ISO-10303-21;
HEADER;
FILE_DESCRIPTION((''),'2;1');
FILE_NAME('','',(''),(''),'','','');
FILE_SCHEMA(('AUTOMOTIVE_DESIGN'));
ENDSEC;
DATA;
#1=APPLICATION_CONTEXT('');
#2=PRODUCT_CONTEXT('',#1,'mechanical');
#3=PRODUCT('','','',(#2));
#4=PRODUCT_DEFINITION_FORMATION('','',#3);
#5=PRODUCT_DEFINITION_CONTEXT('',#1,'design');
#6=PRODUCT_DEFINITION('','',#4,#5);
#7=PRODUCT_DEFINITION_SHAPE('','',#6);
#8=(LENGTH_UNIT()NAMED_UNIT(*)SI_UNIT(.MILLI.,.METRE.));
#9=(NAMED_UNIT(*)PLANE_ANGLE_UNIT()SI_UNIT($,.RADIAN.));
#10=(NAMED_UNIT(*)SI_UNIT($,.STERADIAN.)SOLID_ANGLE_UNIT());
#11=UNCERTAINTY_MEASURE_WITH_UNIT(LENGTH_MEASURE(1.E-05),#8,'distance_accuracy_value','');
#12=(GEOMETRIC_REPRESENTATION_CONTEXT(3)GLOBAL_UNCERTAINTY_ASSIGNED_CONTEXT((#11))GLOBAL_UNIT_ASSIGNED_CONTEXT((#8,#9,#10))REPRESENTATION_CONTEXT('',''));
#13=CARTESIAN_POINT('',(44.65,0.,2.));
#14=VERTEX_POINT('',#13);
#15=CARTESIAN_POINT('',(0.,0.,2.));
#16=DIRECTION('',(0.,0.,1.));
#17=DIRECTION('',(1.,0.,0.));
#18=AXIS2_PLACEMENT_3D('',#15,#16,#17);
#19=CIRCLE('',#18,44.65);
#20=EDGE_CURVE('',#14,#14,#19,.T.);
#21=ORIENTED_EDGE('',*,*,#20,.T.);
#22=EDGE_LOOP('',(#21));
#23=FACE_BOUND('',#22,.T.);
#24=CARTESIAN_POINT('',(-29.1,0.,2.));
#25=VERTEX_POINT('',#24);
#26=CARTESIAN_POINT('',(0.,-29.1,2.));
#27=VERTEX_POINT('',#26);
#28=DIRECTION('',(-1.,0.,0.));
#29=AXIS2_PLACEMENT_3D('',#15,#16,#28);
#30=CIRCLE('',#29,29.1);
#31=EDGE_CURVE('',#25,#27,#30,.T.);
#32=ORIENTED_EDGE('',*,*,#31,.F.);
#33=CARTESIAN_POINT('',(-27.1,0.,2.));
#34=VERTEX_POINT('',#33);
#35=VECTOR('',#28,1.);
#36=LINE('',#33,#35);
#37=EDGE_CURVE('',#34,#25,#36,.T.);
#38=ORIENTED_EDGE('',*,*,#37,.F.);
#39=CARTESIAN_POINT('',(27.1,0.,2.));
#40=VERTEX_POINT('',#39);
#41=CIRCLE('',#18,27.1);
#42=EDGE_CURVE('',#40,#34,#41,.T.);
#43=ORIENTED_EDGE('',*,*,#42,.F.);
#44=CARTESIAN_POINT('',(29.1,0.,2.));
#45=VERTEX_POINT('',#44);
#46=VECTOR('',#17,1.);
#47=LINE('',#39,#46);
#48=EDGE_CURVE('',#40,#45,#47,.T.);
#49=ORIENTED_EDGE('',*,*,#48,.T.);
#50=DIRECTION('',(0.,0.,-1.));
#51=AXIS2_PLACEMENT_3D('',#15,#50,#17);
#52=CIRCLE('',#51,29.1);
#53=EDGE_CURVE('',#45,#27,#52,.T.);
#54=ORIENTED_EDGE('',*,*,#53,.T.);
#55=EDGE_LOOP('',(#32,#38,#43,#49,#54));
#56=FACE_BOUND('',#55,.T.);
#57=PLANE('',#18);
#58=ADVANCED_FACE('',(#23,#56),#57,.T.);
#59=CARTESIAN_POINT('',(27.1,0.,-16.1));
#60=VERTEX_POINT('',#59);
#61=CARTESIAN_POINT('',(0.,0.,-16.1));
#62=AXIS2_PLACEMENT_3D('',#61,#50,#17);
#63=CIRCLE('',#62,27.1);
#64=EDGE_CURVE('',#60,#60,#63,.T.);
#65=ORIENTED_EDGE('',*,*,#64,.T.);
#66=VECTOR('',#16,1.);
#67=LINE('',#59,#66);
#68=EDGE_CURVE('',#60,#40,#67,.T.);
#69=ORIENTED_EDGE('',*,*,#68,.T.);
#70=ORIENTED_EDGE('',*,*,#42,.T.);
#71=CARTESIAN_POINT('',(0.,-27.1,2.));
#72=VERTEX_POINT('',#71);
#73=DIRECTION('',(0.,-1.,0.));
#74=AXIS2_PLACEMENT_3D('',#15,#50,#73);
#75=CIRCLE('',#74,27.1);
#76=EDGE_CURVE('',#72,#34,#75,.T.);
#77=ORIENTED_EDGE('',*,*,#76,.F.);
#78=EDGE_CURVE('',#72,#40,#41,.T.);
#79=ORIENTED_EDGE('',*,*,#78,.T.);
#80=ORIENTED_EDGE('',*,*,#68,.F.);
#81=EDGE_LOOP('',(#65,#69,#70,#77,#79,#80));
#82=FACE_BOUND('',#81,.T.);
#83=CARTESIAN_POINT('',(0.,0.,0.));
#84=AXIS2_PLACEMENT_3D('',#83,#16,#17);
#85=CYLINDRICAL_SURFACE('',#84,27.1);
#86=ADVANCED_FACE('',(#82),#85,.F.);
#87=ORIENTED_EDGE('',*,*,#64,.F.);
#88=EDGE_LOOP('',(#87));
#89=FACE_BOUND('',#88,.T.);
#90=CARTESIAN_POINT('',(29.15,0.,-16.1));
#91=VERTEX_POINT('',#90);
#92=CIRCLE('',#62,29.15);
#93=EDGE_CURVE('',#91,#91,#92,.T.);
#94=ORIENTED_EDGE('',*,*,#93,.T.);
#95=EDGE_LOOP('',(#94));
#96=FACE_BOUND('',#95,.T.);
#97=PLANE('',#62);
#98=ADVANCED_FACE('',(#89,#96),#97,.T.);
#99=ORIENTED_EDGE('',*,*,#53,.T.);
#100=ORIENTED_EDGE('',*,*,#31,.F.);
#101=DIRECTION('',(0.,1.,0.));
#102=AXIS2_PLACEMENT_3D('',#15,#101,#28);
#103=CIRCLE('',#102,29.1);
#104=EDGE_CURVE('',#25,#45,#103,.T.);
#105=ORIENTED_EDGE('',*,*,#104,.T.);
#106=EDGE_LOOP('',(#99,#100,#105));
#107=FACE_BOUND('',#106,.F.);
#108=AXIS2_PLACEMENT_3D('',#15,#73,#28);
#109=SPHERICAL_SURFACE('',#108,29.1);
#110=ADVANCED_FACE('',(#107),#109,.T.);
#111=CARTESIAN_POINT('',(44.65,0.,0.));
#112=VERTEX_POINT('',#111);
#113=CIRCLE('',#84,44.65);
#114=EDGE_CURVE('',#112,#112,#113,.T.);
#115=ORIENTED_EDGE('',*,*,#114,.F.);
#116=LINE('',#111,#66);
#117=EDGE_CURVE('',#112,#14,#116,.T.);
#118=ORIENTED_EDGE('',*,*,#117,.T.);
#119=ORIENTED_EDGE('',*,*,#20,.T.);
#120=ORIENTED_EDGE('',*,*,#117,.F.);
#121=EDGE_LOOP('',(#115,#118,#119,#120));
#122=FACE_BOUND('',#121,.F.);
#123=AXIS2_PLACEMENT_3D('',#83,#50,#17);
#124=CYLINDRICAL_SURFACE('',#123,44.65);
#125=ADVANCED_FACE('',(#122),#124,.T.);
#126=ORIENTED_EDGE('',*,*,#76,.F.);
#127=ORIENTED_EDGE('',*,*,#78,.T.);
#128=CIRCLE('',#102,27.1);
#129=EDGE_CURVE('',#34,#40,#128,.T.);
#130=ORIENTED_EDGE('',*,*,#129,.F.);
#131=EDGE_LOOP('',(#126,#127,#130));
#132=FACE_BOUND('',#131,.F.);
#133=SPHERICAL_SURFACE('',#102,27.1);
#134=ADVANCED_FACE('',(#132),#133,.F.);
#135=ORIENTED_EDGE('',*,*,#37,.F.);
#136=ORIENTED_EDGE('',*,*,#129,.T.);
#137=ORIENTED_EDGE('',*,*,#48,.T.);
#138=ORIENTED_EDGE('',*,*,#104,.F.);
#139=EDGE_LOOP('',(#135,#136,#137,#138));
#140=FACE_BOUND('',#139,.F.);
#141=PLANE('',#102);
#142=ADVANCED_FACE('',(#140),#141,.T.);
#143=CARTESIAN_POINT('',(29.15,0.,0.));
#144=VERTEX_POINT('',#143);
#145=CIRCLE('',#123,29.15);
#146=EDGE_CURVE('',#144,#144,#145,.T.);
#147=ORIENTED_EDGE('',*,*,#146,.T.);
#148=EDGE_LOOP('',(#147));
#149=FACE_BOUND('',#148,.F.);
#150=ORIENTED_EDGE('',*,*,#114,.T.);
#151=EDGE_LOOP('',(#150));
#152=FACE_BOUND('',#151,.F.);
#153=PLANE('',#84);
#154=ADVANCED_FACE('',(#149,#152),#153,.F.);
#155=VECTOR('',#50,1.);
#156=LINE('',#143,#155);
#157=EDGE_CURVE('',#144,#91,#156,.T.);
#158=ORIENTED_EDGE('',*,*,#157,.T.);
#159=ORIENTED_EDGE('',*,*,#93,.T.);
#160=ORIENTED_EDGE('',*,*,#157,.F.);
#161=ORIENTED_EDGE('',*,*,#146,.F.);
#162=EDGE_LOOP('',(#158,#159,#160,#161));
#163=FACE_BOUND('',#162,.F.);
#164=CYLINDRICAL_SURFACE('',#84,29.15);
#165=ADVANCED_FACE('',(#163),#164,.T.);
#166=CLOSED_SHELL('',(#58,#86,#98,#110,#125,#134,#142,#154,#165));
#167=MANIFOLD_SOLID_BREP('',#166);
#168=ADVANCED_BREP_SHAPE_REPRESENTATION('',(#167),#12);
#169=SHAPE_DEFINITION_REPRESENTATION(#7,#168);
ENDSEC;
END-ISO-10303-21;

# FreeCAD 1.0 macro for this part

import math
import FreeCAD as App
import Part
import Sketcher
Q = App.Units.Quantity

doc = App.newDocument("Part")
params = doc.addObject("Spreadsheet::Sheet", "Params")
for row, (alias, value) in enumerate([
    ("sketch1_diameter", "89.3 mm"),
    ("sketch1_diameter2", "54.2 mm"),
    ("pad1_length", "2 mm"),
    ("sketch2_radius", "27.1 mm"),
    ("sketch2_radius2", "29.1 mm"),
    ("revolution_angle", "180 deg"),
    ("sketch3_diameter", "58.3 mm"),
    ("sketch3_diameter2", "54.2 mm"),
    ("pad2_length", "16.1 mm"),
], start=1):
    params.set(f"A{row}", alias)
    params.set(f"B{row}", "=" + value)
    params.setAlias(f"B{row}", alias)

body = doc.addObject("PartDesign::Body", "Body")

# Sketch on XY plane
sketch1 = doc.addObject("Sketcher::SketchObject", "Sketch")
body.addObject(sketch1)
sketch1.AttachmentSupport = (doc.XY_Plane, [""])
sketch1.MapMode = "FlatFace"
sketch1.addGeometry([
    Part.Circle(App.Vector(0, 0, 0), App.Vector(0, 0, 1), 44.65),
    Part.Circle(App.Vector(0, 0, 0), App.Vector(0, 0, 1), 27.1),
], False)
sketch1.addConstraint([
    Sketcher.Constraint("Coincident", 0, 3, -1, 1),
    Sketcher.Constraint("Coincident", 1, 3, -1, 1),
    Sketcher.Constraint("Diameter", 0, Q("89.3 mm")),
    Sketcher.Constraint("Diameter", 1, Q("54.2 mm")),
])
sketch1.setExpression("Constraints[2]", "Params.sketch1_diameter")
sketch1.setExpression("Constraints[3]", "Params.sketch1_diameter2")
pad1 = doc.addObject("PartDesign::Pad", "Pad")
body.addObject(pad1)
pad1.Profile = sketch1
pad1.setExpression("Length", "Params.pad1_length")

# Sketch on XY plane
sketch2 = doc.addObject("Sketcher::SketchObject", "Sketch001")
body.addObject(sketch2)
sketch2.AttachmentSupport = (doc.XY_Plane, [""])
sketch2.MapMode = "FlatFace"
sketch2.AttachmentOffset = App.Placement(App.Vector(0, 0, 2), App.Rotation())
sketch2.addGeometry([
    Part.ArcOfCircle(Part.Circle(App.Vector(0, 0, 0), App.Vector(0, 0, 1), 27.1), math.radians(180), math.radians(270)),
    Part.LineSegment(App.Vector(-27.1, 0, 0), App.Vector(-29.1, 0, 0)),
    Part.ArcOfCircle(Part.Circle(App.Vector(0, 0, 0), App.Vector(0, 0, 1), 29.1), math.radians(180), math.radians(270)),
    Part.LineSegment(App.Vector(0, -29.1, 0), App.Vector(0, -27.1, 0)),
], False)
sketch2.addConstraint([
    Sketcher.Constraint("Coincident", 0, 1, 1, 1),
    Sketcher.Constraint("Coincident", 1, 2, 2, 1),
    Sketcher.Constraint("Coincident", 2, 2, 3, 1),
    Sketcher.Constraint("Coincident", 3, 2, 0, 2),
    Sketcher.Constraint("Horizontal", 1),
    Sketcher.Constraint("Vertical", 3),
    Sketcher.Constraint("Coincident", 0, 3, -1, 1),
    Sketcher.Constraint("Coincident", 2, 3, -1, 1),
    Sketcher.Constraint("PointOnObject", 0, 1, -1),
    Sketcher.Constraint("PointOnObject", 2, 2, -2),
    Sketcher.Constraint("Radius", 0, Q("27.1 mm")),
    Sketcher.Constraint("Radius", 2, Q("29.1 mm")),
])
sketch2.setExpression("Constraints[10]", "Params.sketch2_radius")
sketch2.setExpression("Constraints[11]", "Params.sketch2_radius2")
revolution = doc.addObject("PartDesign::Revolution", "Revolution")
body.addObject(revolution)
revolution.Profile = sketch2
revolution.ReferenceAxis = (sketch2, ["V_Axis"])
revolution.setExpression("Angle", "Params.revolution_angle")

# Sketch on XY plane
sketch3 = doc.addObject("Sketcher::SketchObject", "Sketch002")
body.addObject(sketch3)
sketch3.AttachmentSupport = (doc.XY_Plane, [""])
sketch3.MapMode = "FlatFace"
sketch3.addGeometry([
    Part.Circle(App.Vector(0, 0, 0), App.Vector(0, 0, 1), 29.15),
    Part.Circle(App.Vector(0, 0, 0), App.Vector(0, 0, 1), 27.1),
], False)
sketch3.addConstraint([
    Sketcher.Constraint("Coincident", 0, 3, -1, 1),
    Sketcher.Constraint("Coincident", 1, 3, -1, 1),
    Sketcher.Constraint("Diameter", 0, Q("58.3 mm")),
    Sketcher.Constraint("Diameter", 1, Q("54.2 mm")),
])
sketch3.setExpression("Constraints[2]", "Params.sketch3_diameter")
sketch3.setExpression("Constraints[3]", "Params.sketch3_diameter2")
pad2 = doc.addObject("PartDesign::Pad", "Pad001")
body.addObject(pad2)
pad2.Profile = sketch3
pad2.setExpression("Length", "Params.pad2_length")
pad2.Reversed = True

doc.recompute()
